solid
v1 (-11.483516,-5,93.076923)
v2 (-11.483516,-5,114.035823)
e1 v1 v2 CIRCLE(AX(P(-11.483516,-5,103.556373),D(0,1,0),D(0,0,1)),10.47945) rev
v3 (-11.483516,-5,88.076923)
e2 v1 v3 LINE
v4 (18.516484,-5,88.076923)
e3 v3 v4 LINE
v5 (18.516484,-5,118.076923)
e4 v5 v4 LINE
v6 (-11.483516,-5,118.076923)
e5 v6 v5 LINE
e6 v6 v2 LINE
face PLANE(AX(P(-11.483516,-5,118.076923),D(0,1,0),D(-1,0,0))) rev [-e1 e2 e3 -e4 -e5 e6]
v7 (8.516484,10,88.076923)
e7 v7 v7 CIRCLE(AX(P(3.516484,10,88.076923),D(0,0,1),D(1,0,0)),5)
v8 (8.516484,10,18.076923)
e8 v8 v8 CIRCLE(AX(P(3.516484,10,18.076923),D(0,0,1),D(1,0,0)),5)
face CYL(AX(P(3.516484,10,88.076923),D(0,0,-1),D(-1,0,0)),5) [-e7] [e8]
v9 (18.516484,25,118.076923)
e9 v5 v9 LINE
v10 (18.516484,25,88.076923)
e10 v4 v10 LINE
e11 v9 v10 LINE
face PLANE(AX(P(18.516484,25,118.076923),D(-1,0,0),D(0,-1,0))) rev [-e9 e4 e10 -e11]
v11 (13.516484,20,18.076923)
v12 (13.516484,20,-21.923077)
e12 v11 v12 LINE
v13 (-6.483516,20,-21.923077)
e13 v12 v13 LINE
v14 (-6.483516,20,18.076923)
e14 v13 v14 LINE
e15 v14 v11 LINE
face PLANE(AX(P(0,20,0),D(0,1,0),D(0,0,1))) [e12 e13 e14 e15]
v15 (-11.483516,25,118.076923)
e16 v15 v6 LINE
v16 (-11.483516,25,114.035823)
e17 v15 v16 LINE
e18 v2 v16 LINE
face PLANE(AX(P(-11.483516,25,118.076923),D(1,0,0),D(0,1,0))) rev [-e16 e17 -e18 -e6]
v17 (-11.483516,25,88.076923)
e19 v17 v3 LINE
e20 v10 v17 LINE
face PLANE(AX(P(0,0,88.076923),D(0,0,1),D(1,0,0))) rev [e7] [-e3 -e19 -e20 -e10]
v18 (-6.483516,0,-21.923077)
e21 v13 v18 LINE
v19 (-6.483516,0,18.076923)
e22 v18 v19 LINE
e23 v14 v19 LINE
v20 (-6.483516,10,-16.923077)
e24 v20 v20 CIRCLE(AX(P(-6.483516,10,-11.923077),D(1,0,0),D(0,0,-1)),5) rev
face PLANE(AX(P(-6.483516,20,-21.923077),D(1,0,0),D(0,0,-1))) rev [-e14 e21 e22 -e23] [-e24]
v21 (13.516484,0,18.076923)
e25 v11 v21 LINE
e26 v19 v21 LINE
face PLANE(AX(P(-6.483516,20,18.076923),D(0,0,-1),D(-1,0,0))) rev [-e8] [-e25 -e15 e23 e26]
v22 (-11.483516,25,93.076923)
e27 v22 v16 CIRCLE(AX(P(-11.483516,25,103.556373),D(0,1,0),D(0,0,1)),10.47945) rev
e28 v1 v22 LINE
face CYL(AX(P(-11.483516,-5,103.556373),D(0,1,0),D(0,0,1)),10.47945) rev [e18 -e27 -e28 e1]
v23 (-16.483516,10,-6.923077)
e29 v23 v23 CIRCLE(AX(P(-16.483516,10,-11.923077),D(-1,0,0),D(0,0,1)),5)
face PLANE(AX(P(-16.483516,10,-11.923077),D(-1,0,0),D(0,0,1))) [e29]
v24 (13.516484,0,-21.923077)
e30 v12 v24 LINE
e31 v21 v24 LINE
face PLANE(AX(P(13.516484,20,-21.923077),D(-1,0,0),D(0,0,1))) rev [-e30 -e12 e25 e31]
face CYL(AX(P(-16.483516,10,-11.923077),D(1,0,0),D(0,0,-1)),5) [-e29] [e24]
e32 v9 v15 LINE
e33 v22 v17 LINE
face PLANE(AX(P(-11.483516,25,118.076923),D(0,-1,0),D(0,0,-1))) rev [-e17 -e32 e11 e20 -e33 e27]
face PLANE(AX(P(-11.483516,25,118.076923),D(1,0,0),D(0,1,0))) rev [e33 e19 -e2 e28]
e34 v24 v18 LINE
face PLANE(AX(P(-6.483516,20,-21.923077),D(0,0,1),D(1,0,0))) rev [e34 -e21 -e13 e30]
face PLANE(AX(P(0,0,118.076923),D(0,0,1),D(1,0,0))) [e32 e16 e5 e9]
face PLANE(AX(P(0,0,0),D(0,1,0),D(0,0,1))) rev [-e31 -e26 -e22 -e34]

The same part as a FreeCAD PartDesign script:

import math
import FreeCAD as App
import Part
import Sketcher
from FreeCAD import Vector
Q = App.Units.Quantity

doc = App.newDocument("Part")
body = doc.addObject("PartDesign::Body", "Body")

# Sketch on XZ plane
sketch1 = doc.addObject("Sketcher::SketchObject", "Sketch")
body.addObject(sketch1)
sketch1.AttachmentSupport = (doc.XZ_Plane, [""])
sketch1.MapMode = "FlatFace"
sketch1.addGeometry([
    Part.LineSegment(Vector(-6.483516, -21.923077, 0), Vector(-6.483516, 18.076923, 0)),
    Part.LineSegment(Vector(-6.483516, 18.076923, 0), Vector(13.516484, 18.076923, 0)),
    Part.LineSegment(Vector(13.516484, 18.076923, 0), Vector(13.516484, -21.923077, 0)),
    Part.LineSegment(Vector(13.516484, -21.923077, 0), Vector(-6.483516, -21.923077, 0)),
], False)
sketch1.addConstraint([
    Sketcher.Constraint("Coincident", 0, 2, 1, 1),
    Sketcher.Constraint("Coincident", 1, 2, 2, 1),
    Sketcher.Constraint("Coincident", 2, 2, 3, 1),
    Sketcher.Constraint("Coincident", 3, 2, 0, 1),
    Sketcher.Constraint("Vertical", 0),
    Sketcher.Constraint("Horizontal", 1),
    Sketcher.Constraint("Vertical", 2),
    Sketcher.Constraint("Horizontal", 3),
    Sketcher.Constraint("DistanceX", 1, 1, 1, 2, Q("20 mm")),
    Sketcher.Constraint("DistanceY", 0, 1, 0, 2, Q("40 mm")),
    Sketcher.Constraint("DistanceX", 0, 2, -1, 1, Q("6.483516 mm")),
    Sketcher.Constraint("DistanceY", -1, 1, 0, 2, Q("18.076923 mm")),
])
pad1 = doc.addObject("PartDesign::Pad", "Pad")
body.addObject(pad1)
pad1.Profile = sketch1
pad1.Length = 20
pad1.Reversed = True

# Sketch on YZ plane
sketch2 = doc.addObject("Sketcher::SketchObject", "Sketch001")
body.addObject(sketch2)
sketch2.AttachmentSupport = (doc.YZ_Plane, [""])
sketch2.MapMode = "FlatFace"
sketch2.AttachmentOffset = App.Placement(Vector(0, 0, -6.483516), App.Rotation())
sketch2.addGeometry(Part.Circle(Vector(10, -11.923077, 0), Vector(0, 0, 1), 5), False)
sketch2.addConstraint([
    Sketcher.Constraint("Diameter", 0, Q("10 mm")),
    Sketcher.Constraint("DistanceX", -1, 1, 0, 3, Q("10 mm")),
    Sketcher.Constraint("DistanceY", 0, 3, -1, 1, Q("11.923077 mm")),
])
pad2 = doc.addObject("PartDesign::Pad", "Pad001")
body.addObject(pad2)
pad2.Profile = sketch2
pad2.Length = 10
pad2.Reversed = True

# Sketch on XY plane
sketch3 = doc.addObject("Sketcher::SketchObject", "Sketch002")
body.addObject(sketch3)
sketch3.AttachmentSupport = (doc.XY_Plane, [""])
sketch3.MapMode = "FlatFace"
sketch3.AttachmentOffset = App.Placement(Vector(0, 0, 18.076923), App.Rotation())
sketch3.addGeometry(Part.Circle(Vector(3.516484, 10, 0), Vector(0, 0, 1), 5), False)
sketch3.addConstraint([
    Sketcher.Constraint("Diameter", 0, Q("10 mm")),
    Sketcher.Constraint("DistanceY", -1, 1, 0, 3, Q("10 mm")),
    Sketcher.Constraint("DistanceX", -1, 1, 0, 3, Q("3.516484 mm")),
])
pad3 = doc.addObject("PartDesign::Pad", "Pad002")
body.addObject(pad3)
pad3.Profile = sketch3
pad3.Length = 70

# Sketch on XY plane
sketch4 = doc.addObject("Sketcher::SketchObject", "Sketch003")
body.addObject(sketch4)
sketch4.AttachmentSupport = (doc.XY_Plane, [""])
sketch4.MapMode = "FlatFace"
sketch4.AttachmentOffset = App.Placement(Vector(0, 0, 88.076923), App.Rotation())
sketch4.addGeometry([
    Part.LineSegment(Vector(-11.483516, 25, 0), Vector(-11.483516, -5, 0)),
    Part.LineSegment(Vector(-11.483516, -5, 0), Vector(18.516484, -5, 0)),
    Part.LineSegment(Vector(18.516484, -5, 0), Vector(18.516484, 25, 0)),
    Part.LineSegment(Vector(18.516484, 25, 0), Vector(-11.483516, 25, 0)),
], False)
sketch4.addConstraint([
    Sketcher.Constraint("Coincident", 0, 2, 1, 1),
    Sketcher.Constraint("Coincident", 1, 2, 2, 1),
    Sketcher.Constraint("Coincident", 2, 2, 3, 1),
    Sketcher.Constraint("Coincident", 3, 2, 0, 1),
    Sketcher.Constraint("Vertical", 0),
    Sketcher.Constraint("Horizontal", 1),
    Sketcher.Constraint("Vertical", 2),
    Sketcher.Constraint("Horizontal", 3),
    Sketcher.Constraint("Equal", 3, 0),
    Sketcher.Constraint("DistanceX", 1, 1, 1, 2, Q("30 mm")),
    Sketcher.Constraint("DistanceY", 0, 2, -1, 1, Q("5 mm")),
    Sketcher.Constraint("DistanceX", 0, 2, -1, 1, Q("11.483516 mm")),
])
pad4 = doc.addObject("PartDesign::Pad", "Pad003")
body.addObject(pad4)
pad4.Profile = sketch4
pad4.Length = 30

# Sketch on XZ plane
sketch5 = doc.addObject("Sketcher::SketchObject", "Sketch004")
body.addObject(sketch5)
sketch5.AttachmentSupport = (doc.XZ_Plane, [""])
sketch5.MapMode = "FlatFace"
sketch5.AttachmentOffset = App.Placement(Vector(0, 0, -25), App.Rotation())
sketch5.addGeometry([
    Part.ArcOfCircle(Part.Circle(Vector(-11.483516, 103.556373, 0), Vector(0, 0, 1), 10.47945), math.radians(-90), math.radians(90)),
    Part.LineSegment(Vector(-11.483516, 93.076923, 0), Vector(-11.483516, 114.035823, 0)),
], False)
sketch5.addConstraint([
    Sketcher.Constraint("Coincident", 0, 1, 1, 1),
    Sketcher.Constraint("Coincident", 1, 2, 0, 2),
    Sketcher.Constraint("Vertical", 1),
    Sketcher.Constraint("Radius", 0, Q("10.47945 mm")),
    Sketcher.Constraint("DistanceX", 0, 3, -1, 1, Q("11.483516 mm")),
    Sketcher.Constraint("DistanceY", -1, 1, 0, 3, Q("103.556373 mm")),
    Sketcher.Constraint("DistanceX", 0, 1, -1, 1, Q("11.483516 mm")),
])
pocket1 = doc.addObject("PartDesign::Pocket", "Pocket")
body.addObject(pocket1)
pocket1.Profile = sketch5
pocket1.Length = 30
pocket1.Reversed = True

doc.recompute()
